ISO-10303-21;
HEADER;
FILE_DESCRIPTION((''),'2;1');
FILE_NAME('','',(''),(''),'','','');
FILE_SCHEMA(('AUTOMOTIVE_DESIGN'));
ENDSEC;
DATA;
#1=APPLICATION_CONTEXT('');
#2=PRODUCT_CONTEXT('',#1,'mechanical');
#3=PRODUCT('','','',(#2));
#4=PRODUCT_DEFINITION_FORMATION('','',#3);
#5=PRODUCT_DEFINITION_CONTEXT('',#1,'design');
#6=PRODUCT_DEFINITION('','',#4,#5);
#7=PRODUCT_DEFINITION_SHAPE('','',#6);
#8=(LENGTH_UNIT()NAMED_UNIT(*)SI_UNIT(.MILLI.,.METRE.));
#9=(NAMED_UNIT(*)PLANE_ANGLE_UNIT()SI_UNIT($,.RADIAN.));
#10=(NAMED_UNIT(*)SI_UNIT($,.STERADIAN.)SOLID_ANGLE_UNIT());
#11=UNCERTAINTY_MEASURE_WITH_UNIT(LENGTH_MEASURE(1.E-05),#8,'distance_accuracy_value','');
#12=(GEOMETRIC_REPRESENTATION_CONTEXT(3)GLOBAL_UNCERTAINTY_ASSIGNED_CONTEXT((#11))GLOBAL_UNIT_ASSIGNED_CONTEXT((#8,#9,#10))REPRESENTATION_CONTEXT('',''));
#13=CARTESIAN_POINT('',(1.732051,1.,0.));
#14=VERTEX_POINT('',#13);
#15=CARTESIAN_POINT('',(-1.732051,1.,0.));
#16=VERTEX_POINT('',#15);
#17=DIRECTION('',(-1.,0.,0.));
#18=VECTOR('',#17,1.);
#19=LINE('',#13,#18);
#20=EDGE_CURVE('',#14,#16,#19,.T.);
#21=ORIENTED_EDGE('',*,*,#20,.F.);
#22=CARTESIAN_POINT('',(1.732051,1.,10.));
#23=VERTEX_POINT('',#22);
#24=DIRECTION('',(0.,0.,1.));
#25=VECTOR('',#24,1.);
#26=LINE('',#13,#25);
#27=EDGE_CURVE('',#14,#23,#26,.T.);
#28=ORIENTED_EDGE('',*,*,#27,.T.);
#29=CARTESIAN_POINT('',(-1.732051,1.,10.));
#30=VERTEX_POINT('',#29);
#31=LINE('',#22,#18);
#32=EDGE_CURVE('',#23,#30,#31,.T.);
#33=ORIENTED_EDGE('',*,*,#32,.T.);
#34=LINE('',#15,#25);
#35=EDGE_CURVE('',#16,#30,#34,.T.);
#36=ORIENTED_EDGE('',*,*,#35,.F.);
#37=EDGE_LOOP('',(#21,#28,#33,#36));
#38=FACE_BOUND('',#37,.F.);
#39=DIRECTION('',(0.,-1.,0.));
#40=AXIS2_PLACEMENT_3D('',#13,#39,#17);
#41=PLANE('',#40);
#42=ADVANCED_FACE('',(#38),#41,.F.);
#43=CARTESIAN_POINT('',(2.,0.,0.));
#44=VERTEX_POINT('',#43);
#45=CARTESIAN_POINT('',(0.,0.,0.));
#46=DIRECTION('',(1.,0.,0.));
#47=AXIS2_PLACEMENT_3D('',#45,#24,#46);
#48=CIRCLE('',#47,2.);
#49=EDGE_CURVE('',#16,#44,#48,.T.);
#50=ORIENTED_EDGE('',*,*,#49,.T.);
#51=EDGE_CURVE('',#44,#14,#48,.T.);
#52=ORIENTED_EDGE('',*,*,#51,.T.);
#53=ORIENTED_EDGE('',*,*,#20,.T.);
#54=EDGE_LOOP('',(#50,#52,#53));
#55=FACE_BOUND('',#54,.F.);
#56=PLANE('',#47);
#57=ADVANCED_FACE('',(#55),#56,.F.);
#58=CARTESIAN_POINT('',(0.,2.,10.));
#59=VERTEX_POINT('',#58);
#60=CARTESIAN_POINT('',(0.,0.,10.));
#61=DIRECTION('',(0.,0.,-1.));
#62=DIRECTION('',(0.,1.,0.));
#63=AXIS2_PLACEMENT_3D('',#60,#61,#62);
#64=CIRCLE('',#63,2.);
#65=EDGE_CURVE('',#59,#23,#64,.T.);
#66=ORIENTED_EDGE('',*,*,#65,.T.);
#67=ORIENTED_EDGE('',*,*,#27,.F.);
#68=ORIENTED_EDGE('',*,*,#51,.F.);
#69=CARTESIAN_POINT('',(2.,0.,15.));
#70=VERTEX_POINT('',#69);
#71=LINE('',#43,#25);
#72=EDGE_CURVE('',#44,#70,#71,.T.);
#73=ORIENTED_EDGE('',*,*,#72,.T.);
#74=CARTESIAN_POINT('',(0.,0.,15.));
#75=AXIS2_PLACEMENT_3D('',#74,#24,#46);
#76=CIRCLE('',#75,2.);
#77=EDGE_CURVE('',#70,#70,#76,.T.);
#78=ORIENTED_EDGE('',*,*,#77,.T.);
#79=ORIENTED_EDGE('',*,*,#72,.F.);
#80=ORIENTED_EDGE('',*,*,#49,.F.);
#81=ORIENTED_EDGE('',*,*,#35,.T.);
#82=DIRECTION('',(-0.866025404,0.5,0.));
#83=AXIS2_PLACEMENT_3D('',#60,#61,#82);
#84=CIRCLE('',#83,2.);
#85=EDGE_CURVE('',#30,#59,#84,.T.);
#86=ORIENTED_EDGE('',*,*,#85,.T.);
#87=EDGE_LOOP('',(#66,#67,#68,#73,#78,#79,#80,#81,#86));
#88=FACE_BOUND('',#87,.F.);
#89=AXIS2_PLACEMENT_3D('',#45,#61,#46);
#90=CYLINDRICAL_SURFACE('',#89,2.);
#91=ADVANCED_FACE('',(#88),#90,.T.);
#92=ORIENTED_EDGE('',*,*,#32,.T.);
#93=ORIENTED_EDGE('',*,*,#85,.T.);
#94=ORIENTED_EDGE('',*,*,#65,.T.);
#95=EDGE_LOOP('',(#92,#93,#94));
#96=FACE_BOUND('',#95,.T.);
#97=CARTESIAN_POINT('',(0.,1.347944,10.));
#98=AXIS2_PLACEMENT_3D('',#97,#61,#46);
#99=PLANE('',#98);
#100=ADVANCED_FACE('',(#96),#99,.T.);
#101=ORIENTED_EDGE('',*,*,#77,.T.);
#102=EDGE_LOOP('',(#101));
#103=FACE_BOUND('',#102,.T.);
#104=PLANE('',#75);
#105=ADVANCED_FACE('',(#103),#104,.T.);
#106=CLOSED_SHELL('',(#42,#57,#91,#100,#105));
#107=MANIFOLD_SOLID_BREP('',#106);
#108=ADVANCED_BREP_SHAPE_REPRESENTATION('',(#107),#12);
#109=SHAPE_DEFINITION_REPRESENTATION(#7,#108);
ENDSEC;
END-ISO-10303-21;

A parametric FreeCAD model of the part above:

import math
import FreeCAD as App
import Part
import Sketcher
Q = App.Units.Quantity

doc = App.newDocument("Part")
body = doc.addObject("PartDesign::Body", "Body")

# Sketch on XY plane
sketch1 = doc.addObject("Sketcher::SketchObject", "Sketch")
body.addObject(sketch1)
sketch1.AttachmentSupport = (doc.XY_Plane, [""])
sketch1.MapMode = "FlatFace"
sketch1.addGeometry(Part.Circle(App.Vector(0, 0, 0), App.Vector(0, 0, 1), 2), False)
sketch1.addConstraint(Sketcher.Constraint("Coincident", 0, 3, -1, 1))
sketch1.addConstraint(Sketcher.Constraint("Diameter", 0, Q("4 mm")))
pad1 = doc.addObject("PartDesign::Pad", "Pad")
body.addObject(pad1)
pad1.Profile = sketch1
pad1.Length = 15

# Sketch on XY plane
sketch2 = doc.addObject("Sketcher::SketchObject", "Sketch001")
body.addObject(sketch2)
sketch2.AttachmentSupport = (doc.XY_Plane, [""])
sketch2.MapMode = "FlatFace"
sketch2.addGeometry(Part.ArcOfCircle(Part.Circle(App.Vector(0, 0, 0), App.Vector(0, 0, 1), 2), math.radians(90), math.radians(150)), False)
sketch2.addGeometry(Part.ArcOfCircle(Part.Circle(App.Vector(0, 0, 0), App.Vector(0, 0, 1), 2), math.radians(30), math.radians(90)), False)
sketch2.addGeometry(Part.LineSegment(App.Vector(1.7, 1, 0), App.Vector(-1.7, 1, 0)), False)
sketch2.addConstraint(Sketcher.Constraint("Tangent", 0, 1, 1, 2))
sketch2.addConstraint(Sketcher.Constraint("Coincident", 1, 1, 2, 1))
sketch2.addConstraint(Sketcher.Constraint("Coincident", 2, 2, 0, 2))
sketch2.addConstraint(Sketcher.Constraint("Horizontal", 2))
sketch2.addConstraint(Sketcher.Constraint("Coincident", 0, 3, -1, 1))
sketch2.addConstraint(Sketcher.Constraint("Equal", 0, 1))
sketch2.addConstraint(Sketcher.Constraint("PointOnObject", 0, 1, -2))
sketch2.addConstraint(Sketcher.Constraint("Radius", 0, Q("2 mm")))
sketch2.addConstraint(Sketcher.Constraint("DistanceY", -1, 1, 1, 1, Q("1 mm")))
pocket1 = doc.addObject("PartDesign::Pocket", "Pocket")
body.addObject(pocket1)
pocket1.Profile = sketch2
pocket1.Length = 10
pocket1.Reversed = True

doc.recompute()
